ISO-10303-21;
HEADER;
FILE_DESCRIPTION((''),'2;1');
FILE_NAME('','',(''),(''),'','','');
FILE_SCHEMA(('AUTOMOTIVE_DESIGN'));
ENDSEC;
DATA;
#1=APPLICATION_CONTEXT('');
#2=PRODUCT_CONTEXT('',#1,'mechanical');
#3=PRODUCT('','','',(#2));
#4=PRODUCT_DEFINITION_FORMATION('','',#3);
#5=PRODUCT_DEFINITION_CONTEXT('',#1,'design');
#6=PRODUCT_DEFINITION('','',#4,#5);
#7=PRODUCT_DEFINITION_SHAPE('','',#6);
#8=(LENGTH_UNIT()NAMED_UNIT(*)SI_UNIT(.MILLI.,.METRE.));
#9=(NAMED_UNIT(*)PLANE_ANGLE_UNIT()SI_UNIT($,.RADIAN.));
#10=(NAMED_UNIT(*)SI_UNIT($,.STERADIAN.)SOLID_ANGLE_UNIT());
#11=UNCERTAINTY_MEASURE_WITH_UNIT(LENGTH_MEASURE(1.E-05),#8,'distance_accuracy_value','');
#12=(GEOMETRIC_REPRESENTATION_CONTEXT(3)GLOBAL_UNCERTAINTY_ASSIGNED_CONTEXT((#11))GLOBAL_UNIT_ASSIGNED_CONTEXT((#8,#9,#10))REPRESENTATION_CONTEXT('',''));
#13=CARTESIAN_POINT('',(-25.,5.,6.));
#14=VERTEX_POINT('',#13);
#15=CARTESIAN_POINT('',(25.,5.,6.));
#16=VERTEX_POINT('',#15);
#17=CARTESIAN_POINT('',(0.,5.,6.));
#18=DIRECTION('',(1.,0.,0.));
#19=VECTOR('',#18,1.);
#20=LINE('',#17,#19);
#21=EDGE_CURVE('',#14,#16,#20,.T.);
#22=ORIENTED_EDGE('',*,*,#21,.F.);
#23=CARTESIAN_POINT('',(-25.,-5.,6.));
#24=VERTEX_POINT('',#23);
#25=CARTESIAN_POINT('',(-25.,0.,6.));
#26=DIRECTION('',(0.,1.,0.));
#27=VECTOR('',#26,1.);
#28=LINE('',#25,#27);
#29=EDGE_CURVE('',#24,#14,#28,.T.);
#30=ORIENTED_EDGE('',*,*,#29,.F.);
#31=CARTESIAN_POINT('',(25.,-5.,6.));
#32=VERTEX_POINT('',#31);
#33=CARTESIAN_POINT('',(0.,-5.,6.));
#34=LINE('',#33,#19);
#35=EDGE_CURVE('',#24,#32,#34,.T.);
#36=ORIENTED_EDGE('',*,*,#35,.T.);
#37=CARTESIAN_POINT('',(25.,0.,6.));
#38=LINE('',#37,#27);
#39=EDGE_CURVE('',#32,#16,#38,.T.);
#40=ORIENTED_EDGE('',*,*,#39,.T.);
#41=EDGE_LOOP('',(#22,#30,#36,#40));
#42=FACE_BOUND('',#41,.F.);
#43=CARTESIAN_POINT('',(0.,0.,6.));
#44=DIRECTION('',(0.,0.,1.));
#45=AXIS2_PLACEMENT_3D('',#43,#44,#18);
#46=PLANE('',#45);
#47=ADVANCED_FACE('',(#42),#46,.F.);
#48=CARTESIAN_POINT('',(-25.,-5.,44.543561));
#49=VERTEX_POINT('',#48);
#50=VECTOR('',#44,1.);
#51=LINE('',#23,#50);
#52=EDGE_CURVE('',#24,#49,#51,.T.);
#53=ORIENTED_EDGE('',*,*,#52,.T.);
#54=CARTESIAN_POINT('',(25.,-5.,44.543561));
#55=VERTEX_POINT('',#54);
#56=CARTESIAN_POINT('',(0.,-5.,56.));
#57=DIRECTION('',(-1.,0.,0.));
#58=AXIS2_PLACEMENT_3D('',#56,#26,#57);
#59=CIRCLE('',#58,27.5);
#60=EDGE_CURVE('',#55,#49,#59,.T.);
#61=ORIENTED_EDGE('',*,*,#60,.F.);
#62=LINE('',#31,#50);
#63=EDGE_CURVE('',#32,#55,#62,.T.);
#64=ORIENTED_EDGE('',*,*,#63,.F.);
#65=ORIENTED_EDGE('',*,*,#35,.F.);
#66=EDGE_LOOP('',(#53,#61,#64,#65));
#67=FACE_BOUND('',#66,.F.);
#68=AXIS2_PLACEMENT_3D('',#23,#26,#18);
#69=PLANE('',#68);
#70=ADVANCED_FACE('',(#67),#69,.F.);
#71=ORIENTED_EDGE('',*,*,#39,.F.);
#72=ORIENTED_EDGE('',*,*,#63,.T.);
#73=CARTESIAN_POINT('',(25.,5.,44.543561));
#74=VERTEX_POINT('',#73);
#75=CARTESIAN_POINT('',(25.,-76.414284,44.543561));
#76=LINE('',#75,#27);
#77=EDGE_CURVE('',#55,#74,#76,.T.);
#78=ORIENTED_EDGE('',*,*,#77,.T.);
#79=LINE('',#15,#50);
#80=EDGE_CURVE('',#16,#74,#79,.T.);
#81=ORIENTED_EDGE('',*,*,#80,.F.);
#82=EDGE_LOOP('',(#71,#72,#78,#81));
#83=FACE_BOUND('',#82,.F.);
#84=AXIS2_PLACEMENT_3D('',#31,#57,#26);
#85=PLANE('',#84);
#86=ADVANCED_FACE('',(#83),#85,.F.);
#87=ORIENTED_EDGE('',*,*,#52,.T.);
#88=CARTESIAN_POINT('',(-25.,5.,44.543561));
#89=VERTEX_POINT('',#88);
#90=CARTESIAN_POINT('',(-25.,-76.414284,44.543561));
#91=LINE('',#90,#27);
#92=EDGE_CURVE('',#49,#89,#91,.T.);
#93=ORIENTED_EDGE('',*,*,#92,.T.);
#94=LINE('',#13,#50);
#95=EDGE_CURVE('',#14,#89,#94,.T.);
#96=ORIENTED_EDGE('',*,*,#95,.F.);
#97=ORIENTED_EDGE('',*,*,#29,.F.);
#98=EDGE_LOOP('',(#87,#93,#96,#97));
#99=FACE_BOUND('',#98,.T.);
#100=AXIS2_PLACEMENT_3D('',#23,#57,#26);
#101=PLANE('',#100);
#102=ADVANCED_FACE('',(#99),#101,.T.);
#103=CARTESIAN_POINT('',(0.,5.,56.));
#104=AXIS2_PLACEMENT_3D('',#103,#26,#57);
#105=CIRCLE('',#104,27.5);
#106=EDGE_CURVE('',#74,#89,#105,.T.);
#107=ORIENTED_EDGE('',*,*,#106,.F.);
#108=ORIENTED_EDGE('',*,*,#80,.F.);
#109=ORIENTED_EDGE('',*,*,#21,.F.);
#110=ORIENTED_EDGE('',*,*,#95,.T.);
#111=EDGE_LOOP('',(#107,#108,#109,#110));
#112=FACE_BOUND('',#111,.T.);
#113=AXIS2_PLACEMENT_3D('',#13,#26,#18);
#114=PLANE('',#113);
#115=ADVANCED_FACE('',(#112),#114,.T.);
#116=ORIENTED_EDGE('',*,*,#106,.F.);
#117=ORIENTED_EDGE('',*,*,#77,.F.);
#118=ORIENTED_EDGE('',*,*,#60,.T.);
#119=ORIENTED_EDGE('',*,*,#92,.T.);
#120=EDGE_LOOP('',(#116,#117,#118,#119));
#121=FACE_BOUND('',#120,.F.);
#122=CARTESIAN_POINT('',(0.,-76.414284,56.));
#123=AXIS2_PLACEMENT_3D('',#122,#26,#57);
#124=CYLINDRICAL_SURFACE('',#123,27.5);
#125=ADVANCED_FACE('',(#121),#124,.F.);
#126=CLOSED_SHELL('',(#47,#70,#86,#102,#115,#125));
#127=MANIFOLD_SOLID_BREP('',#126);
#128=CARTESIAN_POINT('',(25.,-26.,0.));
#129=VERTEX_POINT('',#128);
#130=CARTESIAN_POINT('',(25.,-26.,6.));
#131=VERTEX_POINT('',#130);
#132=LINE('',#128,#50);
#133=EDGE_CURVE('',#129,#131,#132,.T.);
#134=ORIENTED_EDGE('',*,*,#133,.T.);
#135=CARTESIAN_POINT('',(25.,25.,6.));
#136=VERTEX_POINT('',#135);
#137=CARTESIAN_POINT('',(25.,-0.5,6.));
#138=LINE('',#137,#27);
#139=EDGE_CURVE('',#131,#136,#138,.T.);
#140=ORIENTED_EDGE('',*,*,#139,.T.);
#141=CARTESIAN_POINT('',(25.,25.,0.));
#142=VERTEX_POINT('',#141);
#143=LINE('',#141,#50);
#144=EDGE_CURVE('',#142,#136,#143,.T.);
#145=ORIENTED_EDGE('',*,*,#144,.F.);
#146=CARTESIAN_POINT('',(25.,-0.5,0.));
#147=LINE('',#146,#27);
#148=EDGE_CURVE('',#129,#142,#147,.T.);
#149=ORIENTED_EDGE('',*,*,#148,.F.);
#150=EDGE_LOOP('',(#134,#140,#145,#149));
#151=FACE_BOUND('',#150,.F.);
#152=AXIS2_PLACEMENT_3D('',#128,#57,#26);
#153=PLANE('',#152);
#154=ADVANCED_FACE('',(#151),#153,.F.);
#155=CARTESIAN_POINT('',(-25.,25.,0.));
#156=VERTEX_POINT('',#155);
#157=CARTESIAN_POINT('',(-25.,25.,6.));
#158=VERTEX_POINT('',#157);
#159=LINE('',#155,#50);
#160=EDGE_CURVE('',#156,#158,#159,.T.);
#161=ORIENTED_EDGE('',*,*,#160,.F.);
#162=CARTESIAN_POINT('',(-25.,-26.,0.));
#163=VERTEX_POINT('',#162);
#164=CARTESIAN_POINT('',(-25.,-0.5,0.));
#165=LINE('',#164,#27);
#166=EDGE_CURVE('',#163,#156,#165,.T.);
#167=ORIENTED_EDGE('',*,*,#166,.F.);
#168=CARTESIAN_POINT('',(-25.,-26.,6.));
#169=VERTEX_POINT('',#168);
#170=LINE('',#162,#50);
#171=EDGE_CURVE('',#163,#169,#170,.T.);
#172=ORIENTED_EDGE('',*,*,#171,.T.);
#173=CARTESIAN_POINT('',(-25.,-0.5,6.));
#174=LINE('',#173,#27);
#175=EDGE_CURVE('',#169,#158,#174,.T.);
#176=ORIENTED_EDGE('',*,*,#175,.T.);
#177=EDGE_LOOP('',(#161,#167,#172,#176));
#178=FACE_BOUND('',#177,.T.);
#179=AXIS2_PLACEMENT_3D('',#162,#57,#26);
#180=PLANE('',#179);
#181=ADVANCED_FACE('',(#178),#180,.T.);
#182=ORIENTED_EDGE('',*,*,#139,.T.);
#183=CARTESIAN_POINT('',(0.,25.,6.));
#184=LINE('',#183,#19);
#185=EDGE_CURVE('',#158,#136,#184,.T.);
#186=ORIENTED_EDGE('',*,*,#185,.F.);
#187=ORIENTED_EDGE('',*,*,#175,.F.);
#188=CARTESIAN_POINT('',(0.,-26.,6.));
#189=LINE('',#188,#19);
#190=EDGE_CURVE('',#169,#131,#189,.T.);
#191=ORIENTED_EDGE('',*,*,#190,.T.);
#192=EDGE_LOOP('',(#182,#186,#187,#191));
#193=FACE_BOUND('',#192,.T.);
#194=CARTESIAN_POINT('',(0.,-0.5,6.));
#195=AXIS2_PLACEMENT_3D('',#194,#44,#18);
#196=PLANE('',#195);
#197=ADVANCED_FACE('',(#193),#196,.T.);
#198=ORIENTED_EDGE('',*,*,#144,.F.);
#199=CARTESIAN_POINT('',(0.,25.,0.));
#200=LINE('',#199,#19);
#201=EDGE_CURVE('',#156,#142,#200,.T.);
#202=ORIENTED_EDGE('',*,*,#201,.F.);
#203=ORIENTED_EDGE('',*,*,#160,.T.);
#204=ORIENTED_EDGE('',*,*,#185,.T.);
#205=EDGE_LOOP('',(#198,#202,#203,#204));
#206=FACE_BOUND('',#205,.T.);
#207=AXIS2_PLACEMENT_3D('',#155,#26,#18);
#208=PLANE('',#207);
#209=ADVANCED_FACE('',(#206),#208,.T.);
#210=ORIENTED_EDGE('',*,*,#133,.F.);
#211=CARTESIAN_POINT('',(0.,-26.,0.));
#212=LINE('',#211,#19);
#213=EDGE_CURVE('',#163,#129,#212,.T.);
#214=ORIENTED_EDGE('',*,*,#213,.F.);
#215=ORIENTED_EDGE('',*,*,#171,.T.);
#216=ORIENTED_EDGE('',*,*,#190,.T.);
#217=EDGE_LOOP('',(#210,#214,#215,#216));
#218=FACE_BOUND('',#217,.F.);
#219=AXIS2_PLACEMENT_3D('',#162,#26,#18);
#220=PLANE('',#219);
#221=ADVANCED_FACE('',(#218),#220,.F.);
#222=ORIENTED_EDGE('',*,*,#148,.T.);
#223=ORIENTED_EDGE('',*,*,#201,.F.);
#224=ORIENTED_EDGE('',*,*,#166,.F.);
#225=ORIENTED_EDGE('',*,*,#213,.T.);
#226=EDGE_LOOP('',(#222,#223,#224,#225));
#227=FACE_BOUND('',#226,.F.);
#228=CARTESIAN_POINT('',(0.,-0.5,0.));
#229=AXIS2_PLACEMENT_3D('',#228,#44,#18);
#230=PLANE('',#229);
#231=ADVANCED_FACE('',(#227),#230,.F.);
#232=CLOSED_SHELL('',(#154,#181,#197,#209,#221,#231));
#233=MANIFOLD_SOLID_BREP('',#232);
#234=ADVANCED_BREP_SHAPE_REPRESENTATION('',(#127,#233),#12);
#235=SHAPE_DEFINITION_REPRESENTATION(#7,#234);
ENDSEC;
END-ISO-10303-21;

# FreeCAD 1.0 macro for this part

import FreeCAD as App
import Part
import Sketcher
from FreeCAD import Vector


def add_polygon(sketch, points):
    """Adds a closed chain of lines whose ends are joined by coincident constraints."""
    first, n = sketch.GeometryCount, len(points)
    for a, b in zip(points, points[1:] + points[:1]):
        sketch.addGeometry(Part.LineSegment(App.Vector(*a, 0), App.Vector(*b, 0)), False)
    for i in range(n):
        sketch.addConstraint(Sketcher.Constraint("Coincident", first + i, 2, first + (i + 1) % n, 1))

doc = App.newDocument("Part")
body = doc.addObject("PartDesign::Body", "Body")

# Sketch on XY plane
sketch1 = body.newObject("Sketcher::SketchObject", "Sketch")
sketch1.AttachmentSupport = (doc.getObject("XY_Plane"), [""])
sketch1.MapMode = "FlatFace"
add_polygon(sketch1, [(-25, 25), (-25, -26), (25, -26), (25, 25)])  # lines 0-3
sketch1.addConstraint([
    Sketcher.Constraint("Vertical", 0),
    Sketcher.Constraint("Horizontal", 1),
    Sketcher.Constraint("Vertical", 2),
    Sketcher.Constraint("Horizontal", 3),
    Sketcher.Constraint("DistanceX", 1, 1, 1, 2, 50.0),
    Sketcher.Constraint("DistanceY", 0, 2, 0, 1, 51.0),
    Sketcher.Constraint("DistanceX", 0, 2, -1, 1, 25.0),
    Sketcher.Constraint("DistanceY", 0, 2, -1, 1, 26.0),
])
pad1 = body.newObject("PartDesign::Pad", "Pad")
pad1.Profile = sketch1
pad1.Length = 6
body2 = doc.addObject("PartDesign::Body", "Body001")

# Sketch on XY plane
sketch2 = body2.newObject("Sketcher::SketchObject", "Sketch001")
sketch2.AttachmentSupport = (doc.getObject("XY_Plane001"), [""])
sketch2.MapMode = "FlatFace"
sketch2.AttachmentOffset = App.Placement(Vector(0, 0, 6), App.Rotation())
add_polygon(sketch2, [(-25, 5), (-25, -5), (25, -5), (25, 5)])  # lines 0-3
sketch2.addConstraint([
    Sketcher.Constraint("Vertical", 0),
    Sketcher.Constraint("Horizontal", 1),
    Sketcher.Constraint("Vertical", 2),
    Sketcher.Constraint("Horizontal", 3),
    Sketcher.Constraint("Symmetric", 0, 2, 2, 2, -1, 1),
    Sketcher.Constraint("DistanceX", 1, 1, 1, 2, 50.0),
    Sketcher.Constraint("DistanceY", 0, 2, 0, 1, 10.0),
])
pad2 = body2.newObject("PartDesign::Pad", "Pad001")
pad2.Profile = sketch2
pad2.Length = 50

# Sketch on XZ plane
sketch3 = body2.newObject("Sketcher::SketchObject", "Sketch002")
sketch3.AttachmentSupport = (doc.getObject("XZ_Plane001"), [""])
sketch3.MapMode = "FlatFace"
sketch3.AttachmentOffset = App.Placement(Vector(0, 0, 5), App.Rotation())
sketch3.addGeometry(Part.Circle(Vector(0, 56, 0), Vector(0, 0, 1), 28), False)
sketch3.addConstraint([
    Sketcher.Constraint("PointOnObject", 0, 3, -2),
    Sketcher.Constraint("Diameter", 0, 55.0),
    Sketcher.Constraint("DistanceY", -1, 1, 0, 3, 56.0),
])
doc.recompute()
hole = body2.newObject("PartDesign::Hole", "Hole")
hole.Profile = sketch3
hole.ThreadType = "None"
hole.Diameter = 55
hole.DepthType = "ThroughAll"

doc.recompute()
